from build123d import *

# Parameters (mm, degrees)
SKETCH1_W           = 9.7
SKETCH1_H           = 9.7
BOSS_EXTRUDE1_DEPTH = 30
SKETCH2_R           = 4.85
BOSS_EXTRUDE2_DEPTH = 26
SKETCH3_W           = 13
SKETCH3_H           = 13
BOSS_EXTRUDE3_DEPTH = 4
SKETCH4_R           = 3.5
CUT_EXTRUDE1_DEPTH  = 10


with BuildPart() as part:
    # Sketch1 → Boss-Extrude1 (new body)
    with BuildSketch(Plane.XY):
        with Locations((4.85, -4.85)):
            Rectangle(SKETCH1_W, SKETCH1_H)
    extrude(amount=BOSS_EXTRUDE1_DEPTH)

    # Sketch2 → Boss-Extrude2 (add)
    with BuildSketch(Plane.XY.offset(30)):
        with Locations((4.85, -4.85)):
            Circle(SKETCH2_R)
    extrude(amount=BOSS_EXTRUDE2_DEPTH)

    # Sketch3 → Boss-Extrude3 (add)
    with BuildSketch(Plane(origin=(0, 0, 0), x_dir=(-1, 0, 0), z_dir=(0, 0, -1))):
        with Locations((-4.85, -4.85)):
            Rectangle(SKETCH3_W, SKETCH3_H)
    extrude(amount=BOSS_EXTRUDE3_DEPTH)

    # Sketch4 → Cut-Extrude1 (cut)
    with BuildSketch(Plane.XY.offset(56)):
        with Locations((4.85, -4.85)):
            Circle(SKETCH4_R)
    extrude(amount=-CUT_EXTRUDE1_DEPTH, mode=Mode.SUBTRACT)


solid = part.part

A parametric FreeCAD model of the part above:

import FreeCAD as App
import Part
import Sketcher

doc = App.newDocument("Part")
body = doc.addObject("PartDesign::Body", "Body")

sketch1 = body.newObject("Sketcher::SketchObject", "Sketch")
sketch1.AttachmentSupport = (doc.getObject("XY_Plane"), [""])
sketch1.MapMode = "FlatFace"
sketch1.addGeometry(Part.LineSegment(App.Vector(0, 0, 0), App.Vector(0, -10, 0)), False)
sketch1.addGeometry(Part.LineSegment(App.Vector(0, -10, 0), App.Vector(10, -10, 0)), False)
sketch1.addGeometry(Part.LineSegment(App.Vector(10, -10, 0), App.Vector(10, 0, 0)), False)
sketch1.addGeometry(Part.LineSegment(App.Vector(10, 0, 0), App.Vector(0, 0, 0)), False)
sketch1.addConstraint(Sketcher.Constraint("Coincident", 0, 2, 1, 1))
sketch1.addConstraint(Sketcher.Constraint("Coincident", 1, 2, 2, 1))
sketch1.addConstraint(Sketcher.Constraint("Coincident", 2, 2, 3, 1))
sketch1.addConstraint(Sketcher.Constraint("Coincident", 3, 2, 0, 1))
sketch1.addConstraint(Sketcher.Constraint("Vertical", 0))
sketch1.addConstraint(Sketcher.Constraint("Horizontal", 1))
sketch1.addConstraint(Sketcher.Constraint("Vertical", 2))
sketch1.addConstraint(Sketcher.Constraint("Horizontal", 3))
sketch1.addConstraint(Sketcher.Constraint("Coincident", 3, 2, -1, 1))
sketch1.addConstraint(Sketcher.Constraint("Equal", 3, 0))
sketch1.addConstraint(Sketcher.Constraint("DistanceX", 1, 1, 1, 2, 9.7))
pad1 = body.newObject("PartDesign::Pad", "Pad")
pad1.Profile = sketch1
pad1.Length = 30

sketch2 = body.newObject("Sketcher::SketchObject", "Sketch001")
sketch2.AttachmentSupport = (doc.getObject("XY_Plane"), [""])
sketch2.MapMode = "FlatFace"
sketch2.AttachmentOffset = App.Placement(App.Vector(0, 0, 30), App.Rotation())
sketch2.addGeometry(Part.Circle(App.Vector(4.8, -4.8, 0), App.Vector(0, 0, 1), 4.8), False)
sketch2.addConstraint(Sketcher.Constraint("Diameter", 0, 9.7))
sketch2.addConstraint(Sketcher.Constraint("DistanceX", -1, 1, 0, 3, 4.85))
sketch2.addConstraint(Sketcher.Constraint("DistanceY", 0, 3, -1, 1, 4.85))
pad2 = body.newObject("PartDesign::Pad", "Pad001")
pad2.Profile = sketch2
pad2.Length = 26

sketch3 = body.newObject("Sketcher::SketchObject", "Sketch002")
sketch3.AttachmentSupport = (doc.getObject("XY_Plane"), [""])
sketch3.MapMode = "FlatFace"
sketch3.addGeometry(Part.LineSegment(App.Vector(11, 2, 0), App.Vector(11, -11, 0)), False)
sketch3.addGeometry(Part.LineSegment(App.Vector(11, -11, 0), App.Vector(-2, -11, 0)), False)
sketch3.addGeometry(Part.LineSegment(App.Vector(-2, -11, 0), App.Vector(-2, 2, 0)), False)
sketch3.addGeometry(Part.LineSegment(App.Vector(-2, 2, 0), App.Vector(11, 2, 0)), False)
sketch3.addConstraint(Sketcher.Constraint("Coincident", 0, 2, 1, 1))
sketch3.addConstraint(Sketcher.Constraint("Coincident", 1, 2, 2, 1))
sketch3.addConstraint(Sketcher.Constraint("Coincident", 2, 2, 3, 1))
sketch3.addConstraint(Sketcher.Constraint("Coincident", 3, 2, 0, 1))
sketch3.addConstraint(Sketcher.Constraint("Vertical", 0))
sketch3.addConstraint(Sketcher.Constraint("Horizontal", 1))
sketch3.addConstraint(Sketcher.Constraint("Vertical", 2))
sketch3.addConstraint(Sketcher.Constraint("Horizontal", 3))
sketch3.addConstraint(Sketcher.Constraint("Equal", 3, 0))
sketch3.addConstraint(Sketcher.Constraint("DistanceX", 1, 2, 1, 1, 13.0))
sketch3.addConstraint(Sketcher.Constraint("DistanceX", -1, 1, 0, 2, 11.35))
sketch3.addConstraint(Sketcher.Constraint("DistanceY", 0, 2, -1, 1, 11.35))
pad3 = body.newObject("PartDesign::Pad", "Pad002")
pad3.Profile = sketch3
pad3.Length = 4
pad3.Reversed = True

sketch4 = body.newObject("Sketcher::SketchObject", "Sketch003")
sketch4.AttachmentSupport = (doc.getObject("XY_Plane"), [""])
sketch4.MapMode = "FlatFace"
sketch4.AttachmentOffset = App.Placement(App.Vector(0, 0, 56), App.Rotation())
sketch4.addGeometry(Part.Circle(App.Vector(4.8, -4.8, 0), App.Vector(0, 0, 1), 3.5), False)
sketch4.addConstraint(Sketcher.Constraint("Diameter", 0, 7.0))
sketch4.addConstraint(Sketcher.Constraint("DistanceX", -1, 1, 0, 3, 4.85))
sketch4.addConstraint(Sketcher.Constraint("DistanceY", 0, 3, -1, 1, 4.85))
pocket1 = body.newObject("PartDesign::Pocket", "Pocket")
pocket1.Profile = sketch4
pocket1.Length = 10

doc.recompute()
